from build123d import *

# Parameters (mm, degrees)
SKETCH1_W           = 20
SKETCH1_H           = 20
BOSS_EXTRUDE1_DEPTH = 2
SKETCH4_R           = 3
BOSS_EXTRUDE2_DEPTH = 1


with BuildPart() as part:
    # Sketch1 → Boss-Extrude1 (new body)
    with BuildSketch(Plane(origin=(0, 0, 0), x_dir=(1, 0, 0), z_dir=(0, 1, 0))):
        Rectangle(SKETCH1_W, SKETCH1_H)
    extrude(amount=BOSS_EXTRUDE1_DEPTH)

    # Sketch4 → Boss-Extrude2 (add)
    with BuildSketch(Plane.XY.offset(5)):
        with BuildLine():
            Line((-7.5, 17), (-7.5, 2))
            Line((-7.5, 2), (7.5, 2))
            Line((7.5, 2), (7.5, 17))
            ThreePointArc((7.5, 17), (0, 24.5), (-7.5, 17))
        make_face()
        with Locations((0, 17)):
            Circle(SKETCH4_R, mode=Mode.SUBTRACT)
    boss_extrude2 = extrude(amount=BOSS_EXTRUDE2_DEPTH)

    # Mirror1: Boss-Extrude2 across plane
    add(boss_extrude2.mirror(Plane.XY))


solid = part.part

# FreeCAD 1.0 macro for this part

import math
import FreeCAD as App
import Part
import Sketcher
from FreeCAD import Vector

doc = App.newDocument("Part")
body = doc.addObject("PartDesign::Body", "Body")

sketch1 = doc.addObject("Sketcher::SketchObject", "Sketch")
body.addObject(sketch1)
sketch1.AttachmentSupport = (doc.XZ_Plane, [""])
sketch1.MapMode = "FlatFace"
sketch1.addGeometry([
    Part.LineSegment(Vector(-10, -10, 0), Vector(-10, 10, 0)),
    Part.LineSegment(Vector(-10, 10, 0), Vector(10, 10, 0)),
    Part.LineSegment(Vector(10, 10, 0), Vector(10, -10, 0)),
    Part.LineSegment(Vector(10, -10, 0), Vector(-10, -10, 0)),
], False)
sketch1.addConstraint([
    Sketcher.Constraint("Coincident", 0, 2, 1, 1),
    Sketcher.Constraint("Coincident", 1, 2, 2, 1),
    Sketcher.Constraint("Coincident", 2, 2, 3, 1),
    Sketcher.Constraint("Coincident", 3, 2, 0, 1),
    Sketcher.Constraint("Vertical", 0),
    Sketcher.Constraint("Horizontal", 1),
    Sketcher.Constraint("Vertical", 2),
    Sketcher.Constraint("Horizontal", 3),
    Sketcher.Constraint("Symmetric", 0, 2, 2, 2, -1, 1),
    Sketcher.Constraint("Equal", 3, 0),
    Sketcher.Constraint("DistanceX", 1, 1, 1, 2, 20.0),
])
pad1 = doc.addObject("PartDesign::Pad", "Pad")
body.addObject(pad1)
pad1.Profile = sketch1
pad1.Length = 2
pad1.Reversed = True

sketch2 = doc.addObject("Sketcher::SketchObject", "Sketch001")
body.addObject(sketch2)
sketch2.AttachmentSupport = (doc.XY_Plane, [""])
sketch2.MapMode = "FlatFace"
sketch2.AttachmentOffset = App.Placement(Vector(0, 0, 5), App.Rotation())
sketch2.addGeometry([
    Part.LineSegment(Vector(-7.5, 17, 0), Vector(-7.5, 2, 0)),
    Part.LineSegment(Vector(-7.5, 2, 0), Vector(7.5, 2, 0)),
    Part.LineSegment(Vector(7.5, 2, 0), Vector(7.5, 17, 0)),
    Part.ArcOfCircle(Part.Circle(Vector(0, 17, 0), Vector(0, 0, 1), 7.5), math.radians(0), math.radians(180)),
    Part.Circle(Vector(0, 17, 0), Vector(0, 0, 1), 3),
], False)
sketch2.addConstraint([
    Sketcher.Constraint("Coincident", 0, 2, 1, 1),
    Sketcher.Constraint("Coincident", 1, 2, 2, 1),
    Sketcher.Constraint("Tangent", 2, 2, 3, 1),
    Sketcher.Constraint("Tangent", 3, 2, 0, 1),
    Sketcher.Constraint("Vertical", 0),
    Sketcher.Constraint("Horizontal", 1),
    Sketcher.Constraint("Vertical", 2),
    Sketcher.Constraint("Coincident", 4, 3, 3, 3),
    Sketcher.Constraint("PointOnObject", 3, 3, -2),
    Sketcher.Constraint("Equal", 1, 0),
    Sketcher.Constraint("Diameter", 4, 6.0),
    Sketcher.Constraint("Radius", 3, 7.5),
    Sketcher.Constraint("DistanceY", -1, 1, 3, 3, 17.0),
])
pad2 = doc.addObject("PartDesign::Pad", "Pad001")
body.addObject(pad2)
pad2.Profile = sketch2
pad2.Length = 1
doc.recompute()

mirrored = doc.addObject("PartDesign::Mirrored", "Mirrored")
body.addObject(mirrored)
mirrored.Originals = [pad2]
mirrored.MirrorPlane = (doc.XY_Plane, [""])
body.Tip = mirrored

doc.recompute()
